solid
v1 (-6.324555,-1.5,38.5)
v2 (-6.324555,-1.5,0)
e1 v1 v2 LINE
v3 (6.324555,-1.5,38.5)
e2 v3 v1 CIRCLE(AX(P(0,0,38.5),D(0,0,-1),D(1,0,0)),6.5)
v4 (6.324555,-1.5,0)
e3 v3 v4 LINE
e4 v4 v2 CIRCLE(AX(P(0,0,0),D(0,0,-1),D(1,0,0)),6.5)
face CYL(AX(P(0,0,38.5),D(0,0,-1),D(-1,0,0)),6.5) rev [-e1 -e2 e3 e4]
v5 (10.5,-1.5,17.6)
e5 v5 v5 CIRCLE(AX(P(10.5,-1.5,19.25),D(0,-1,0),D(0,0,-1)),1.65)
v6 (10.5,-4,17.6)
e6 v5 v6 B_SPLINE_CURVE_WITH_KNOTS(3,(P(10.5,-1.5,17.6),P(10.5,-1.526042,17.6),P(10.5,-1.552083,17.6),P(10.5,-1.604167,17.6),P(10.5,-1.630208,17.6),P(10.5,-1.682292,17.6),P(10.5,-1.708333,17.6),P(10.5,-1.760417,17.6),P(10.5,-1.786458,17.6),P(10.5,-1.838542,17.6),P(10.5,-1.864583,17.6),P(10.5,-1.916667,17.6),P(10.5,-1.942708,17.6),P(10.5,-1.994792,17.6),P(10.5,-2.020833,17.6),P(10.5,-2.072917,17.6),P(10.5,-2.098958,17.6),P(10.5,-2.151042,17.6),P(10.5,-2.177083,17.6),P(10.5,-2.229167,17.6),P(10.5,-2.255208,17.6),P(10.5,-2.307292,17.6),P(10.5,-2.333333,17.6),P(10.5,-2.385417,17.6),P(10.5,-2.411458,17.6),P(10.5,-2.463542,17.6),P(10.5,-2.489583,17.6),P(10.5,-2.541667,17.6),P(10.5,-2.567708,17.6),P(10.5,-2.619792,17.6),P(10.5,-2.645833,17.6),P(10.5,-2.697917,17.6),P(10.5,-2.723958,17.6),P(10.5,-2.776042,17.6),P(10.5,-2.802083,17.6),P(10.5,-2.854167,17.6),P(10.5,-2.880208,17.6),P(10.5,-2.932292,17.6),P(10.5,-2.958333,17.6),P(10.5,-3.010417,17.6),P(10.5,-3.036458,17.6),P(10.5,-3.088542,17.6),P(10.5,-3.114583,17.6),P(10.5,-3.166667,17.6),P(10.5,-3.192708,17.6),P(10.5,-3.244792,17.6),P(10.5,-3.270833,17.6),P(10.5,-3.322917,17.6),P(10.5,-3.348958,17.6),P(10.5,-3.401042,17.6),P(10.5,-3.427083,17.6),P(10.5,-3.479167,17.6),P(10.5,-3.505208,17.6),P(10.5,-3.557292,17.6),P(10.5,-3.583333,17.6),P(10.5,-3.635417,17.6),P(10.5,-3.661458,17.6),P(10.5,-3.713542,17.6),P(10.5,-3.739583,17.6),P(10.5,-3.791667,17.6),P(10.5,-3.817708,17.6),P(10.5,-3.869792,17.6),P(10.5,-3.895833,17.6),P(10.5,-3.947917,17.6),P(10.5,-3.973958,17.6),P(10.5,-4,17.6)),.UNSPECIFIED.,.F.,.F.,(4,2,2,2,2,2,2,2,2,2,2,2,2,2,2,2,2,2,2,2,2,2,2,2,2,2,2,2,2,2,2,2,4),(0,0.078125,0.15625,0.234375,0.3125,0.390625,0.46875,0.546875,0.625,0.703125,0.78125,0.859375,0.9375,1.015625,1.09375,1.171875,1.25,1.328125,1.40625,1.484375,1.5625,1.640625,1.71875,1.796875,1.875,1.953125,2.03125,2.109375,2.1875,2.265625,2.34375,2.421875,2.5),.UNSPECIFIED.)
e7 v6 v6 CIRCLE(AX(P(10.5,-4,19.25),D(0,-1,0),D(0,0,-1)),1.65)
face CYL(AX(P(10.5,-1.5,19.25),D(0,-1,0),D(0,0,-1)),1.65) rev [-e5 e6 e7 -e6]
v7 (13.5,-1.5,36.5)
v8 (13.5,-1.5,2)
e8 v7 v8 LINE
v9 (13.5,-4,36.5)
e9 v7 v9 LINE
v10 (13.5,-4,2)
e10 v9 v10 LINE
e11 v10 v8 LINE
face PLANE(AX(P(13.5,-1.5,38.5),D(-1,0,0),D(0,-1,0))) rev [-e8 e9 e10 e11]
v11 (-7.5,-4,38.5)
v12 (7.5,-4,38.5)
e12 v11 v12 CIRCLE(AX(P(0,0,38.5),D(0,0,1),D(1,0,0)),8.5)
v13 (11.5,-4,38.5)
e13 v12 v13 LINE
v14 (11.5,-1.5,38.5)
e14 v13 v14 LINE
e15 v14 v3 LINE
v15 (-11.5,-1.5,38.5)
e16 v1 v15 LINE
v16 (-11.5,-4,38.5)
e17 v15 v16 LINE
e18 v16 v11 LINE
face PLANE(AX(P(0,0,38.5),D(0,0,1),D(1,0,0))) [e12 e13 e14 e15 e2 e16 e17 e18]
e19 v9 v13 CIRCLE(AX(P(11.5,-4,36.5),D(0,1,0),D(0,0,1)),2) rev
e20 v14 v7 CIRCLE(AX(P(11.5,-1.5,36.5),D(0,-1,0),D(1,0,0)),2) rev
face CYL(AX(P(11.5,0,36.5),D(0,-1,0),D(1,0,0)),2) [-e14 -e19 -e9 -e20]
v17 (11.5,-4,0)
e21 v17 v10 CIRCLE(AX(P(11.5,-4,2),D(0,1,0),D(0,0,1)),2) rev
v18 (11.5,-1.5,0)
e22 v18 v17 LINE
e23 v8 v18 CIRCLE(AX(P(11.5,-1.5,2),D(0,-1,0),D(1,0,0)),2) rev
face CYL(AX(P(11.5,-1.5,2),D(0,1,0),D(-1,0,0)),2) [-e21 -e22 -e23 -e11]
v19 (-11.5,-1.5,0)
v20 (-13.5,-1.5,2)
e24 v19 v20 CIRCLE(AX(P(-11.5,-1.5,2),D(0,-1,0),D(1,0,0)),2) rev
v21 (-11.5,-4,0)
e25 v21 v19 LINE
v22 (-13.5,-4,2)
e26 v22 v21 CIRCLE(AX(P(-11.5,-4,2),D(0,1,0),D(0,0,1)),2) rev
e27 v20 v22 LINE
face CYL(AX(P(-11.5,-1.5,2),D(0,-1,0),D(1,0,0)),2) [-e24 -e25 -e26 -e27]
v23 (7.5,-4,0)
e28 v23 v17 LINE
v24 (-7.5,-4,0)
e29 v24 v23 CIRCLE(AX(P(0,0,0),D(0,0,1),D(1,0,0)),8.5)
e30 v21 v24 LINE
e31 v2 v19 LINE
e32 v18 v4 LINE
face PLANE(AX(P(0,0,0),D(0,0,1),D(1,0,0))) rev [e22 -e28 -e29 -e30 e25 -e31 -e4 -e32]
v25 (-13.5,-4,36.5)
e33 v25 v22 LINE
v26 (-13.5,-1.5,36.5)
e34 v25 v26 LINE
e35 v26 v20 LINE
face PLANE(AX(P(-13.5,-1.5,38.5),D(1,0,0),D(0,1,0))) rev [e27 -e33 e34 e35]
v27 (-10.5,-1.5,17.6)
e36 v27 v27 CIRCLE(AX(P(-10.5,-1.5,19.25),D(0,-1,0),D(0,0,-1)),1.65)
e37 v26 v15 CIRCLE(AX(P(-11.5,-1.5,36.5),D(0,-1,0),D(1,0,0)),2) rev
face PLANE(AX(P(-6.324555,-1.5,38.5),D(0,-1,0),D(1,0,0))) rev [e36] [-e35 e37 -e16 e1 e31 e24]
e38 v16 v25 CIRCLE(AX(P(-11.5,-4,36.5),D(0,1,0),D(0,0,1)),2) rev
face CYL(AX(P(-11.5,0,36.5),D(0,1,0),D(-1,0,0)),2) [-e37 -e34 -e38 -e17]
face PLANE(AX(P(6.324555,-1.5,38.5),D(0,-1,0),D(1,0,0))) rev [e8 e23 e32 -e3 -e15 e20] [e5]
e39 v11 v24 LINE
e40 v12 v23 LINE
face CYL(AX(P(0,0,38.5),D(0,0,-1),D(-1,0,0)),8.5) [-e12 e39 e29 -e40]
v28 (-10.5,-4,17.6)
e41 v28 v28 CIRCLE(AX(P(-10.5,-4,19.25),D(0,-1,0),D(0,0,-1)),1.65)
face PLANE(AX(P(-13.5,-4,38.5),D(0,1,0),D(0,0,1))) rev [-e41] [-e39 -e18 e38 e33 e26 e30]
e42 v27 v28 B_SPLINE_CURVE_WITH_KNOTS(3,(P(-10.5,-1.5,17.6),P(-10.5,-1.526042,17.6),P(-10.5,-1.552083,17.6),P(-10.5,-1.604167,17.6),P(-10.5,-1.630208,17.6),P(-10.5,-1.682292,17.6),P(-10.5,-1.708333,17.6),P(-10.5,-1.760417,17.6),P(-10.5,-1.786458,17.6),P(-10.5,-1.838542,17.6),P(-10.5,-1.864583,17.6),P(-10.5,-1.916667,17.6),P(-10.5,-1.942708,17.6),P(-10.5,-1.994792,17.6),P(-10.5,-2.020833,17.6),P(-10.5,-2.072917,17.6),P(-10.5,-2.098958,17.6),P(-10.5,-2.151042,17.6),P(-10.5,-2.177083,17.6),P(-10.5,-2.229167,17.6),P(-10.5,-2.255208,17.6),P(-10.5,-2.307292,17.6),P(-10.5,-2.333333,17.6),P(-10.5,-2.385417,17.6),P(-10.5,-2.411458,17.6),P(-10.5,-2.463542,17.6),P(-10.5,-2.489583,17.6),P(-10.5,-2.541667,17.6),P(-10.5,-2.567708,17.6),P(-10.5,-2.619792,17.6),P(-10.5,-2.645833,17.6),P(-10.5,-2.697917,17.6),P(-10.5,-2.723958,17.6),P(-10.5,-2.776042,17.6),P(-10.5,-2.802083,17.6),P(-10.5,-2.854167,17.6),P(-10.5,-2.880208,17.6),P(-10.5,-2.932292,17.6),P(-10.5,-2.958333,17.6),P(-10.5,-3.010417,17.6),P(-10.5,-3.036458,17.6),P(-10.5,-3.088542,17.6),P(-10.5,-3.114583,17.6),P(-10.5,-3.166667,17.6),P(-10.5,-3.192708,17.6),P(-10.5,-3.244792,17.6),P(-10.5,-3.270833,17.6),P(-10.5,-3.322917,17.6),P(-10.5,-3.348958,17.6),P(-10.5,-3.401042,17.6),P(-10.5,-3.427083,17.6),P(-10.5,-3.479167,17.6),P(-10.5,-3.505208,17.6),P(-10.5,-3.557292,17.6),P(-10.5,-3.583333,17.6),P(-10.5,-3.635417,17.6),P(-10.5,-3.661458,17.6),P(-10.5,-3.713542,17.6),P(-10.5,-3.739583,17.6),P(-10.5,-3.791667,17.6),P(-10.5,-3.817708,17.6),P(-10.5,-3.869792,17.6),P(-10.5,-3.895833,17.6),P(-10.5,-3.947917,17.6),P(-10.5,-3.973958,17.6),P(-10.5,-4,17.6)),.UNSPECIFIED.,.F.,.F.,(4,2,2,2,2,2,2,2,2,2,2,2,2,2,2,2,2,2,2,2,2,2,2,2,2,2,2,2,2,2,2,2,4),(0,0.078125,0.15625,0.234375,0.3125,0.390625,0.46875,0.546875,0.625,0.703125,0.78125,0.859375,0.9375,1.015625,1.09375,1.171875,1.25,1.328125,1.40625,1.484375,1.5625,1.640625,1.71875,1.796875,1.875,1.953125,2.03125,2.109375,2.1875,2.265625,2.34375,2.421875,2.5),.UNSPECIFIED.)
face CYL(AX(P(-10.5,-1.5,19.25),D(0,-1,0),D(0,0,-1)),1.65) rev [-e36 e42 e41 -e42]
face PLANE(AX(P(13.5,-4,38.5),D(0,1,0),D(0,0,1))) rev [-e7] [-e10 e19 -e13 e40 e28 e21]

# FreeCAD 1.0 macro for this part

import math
import FreeCAD as App
import Part
import Sketcher

V = App.Vector
Q = App.Units.Quantity


def edges_at(feature, points):
    """Names of the edges that pass closest to the given points."""
    edges = feature.Shape.Edges
    near = lambda p: min(range(len(edges)), key=lambda i: edges[i].distToShape(Part.Vertex(*p))[0])
    return sorted({f"Edge{near(p) + 1}" for p in points})

doc = App.newDocument("Part")
body = doc.addObject("PartDesign::Body", "Body")

sketch1 = body.newObject("Sketcher::SketchObject", "Sketch")
sketch1.AttachmentSupport = (doc.getObject("XY_Plane"), [""])
sketch1.MapMode = "FlatFace"
sketch1.addGeometry(Part.LineSegment(V(-6.3, -1.5, 0), V(-13.5, -1.5, 0)), False)
sketch1.addGeometry(Part.LineSegment(V(-13.5, -1.5, 0), V(-13.5, -4, 0)), False)
sketch1.addGeometry(Part.LineSegment(V(-13.5, -4, 0), V(-7.5, -4, 0)), False)
sketch1.addGeometry(Part.ArcOfCircle(Part.Circle(V(0, 0, 0), V(0, 0, 1), 8.5), math.radians(-152), math.radians(-28)), False)
sketch1.addGeometry(Part.LineSegment(V(7.5, -4, 0), V(13.5, -4, 0)), False)
sketch1.addGeometry(Part.LineSegment(V(13.5, -4, 0), V(13.5, -1.5, 0)), False)
sketch1.addGeometry(Part.LineSegment(V(13.5, -1.5, 0), V(6.3, -1.5, 0)), False)
sketch1.addGeometry(Part.ArcOfCircle(Part.Circle(V(0, 0, 0), V(0, 0, 1), 6.5), math.radians(-167), math.radians(-13)), False)
sketch1.addConstraint(Sketcher.Constraint("Coincident", 0, 2, 1, 1))
sketch1.addConstraint(Sketcher.Constraint("Coincident", 1, 2, 2, 1))
sketch1.addConstraint(Sketcher.Constraint("Coincident", 2, 2, 3, 1))
sketch1.addConstraint(Sketcher.Constraint("Coincident", 3, 2, 4, 1))
sketch1.addConstraint(Sketcher.Constraint("Coincident", 4, 2, 5, 1))
sketch1.addConstraint(Sketcher.Constraint("Coincident", 5, 2, 6, 1))
sketch1.addConstraint(Sketcher.Constraint("Coincident", 6, 2, 7, 2))
sketch1.addConstraint(Sketcher.Constraint("Coincident", 7, 1, 0, 1))
sketch1.addConstraint(Sketcher.Constraint("Horizontal", 0))
sketch1.addConstraint(Sketcher.Constraint("Vertical", 1))
sketch1.addConstraint(Sketcher.Constraint("Horizontal", 2))
sketch1.addConstraint(Sketcher.Constraint("Horizontal", 4))
sketch1.addConstraint(Sketcher.Constraint("Vertical", 5))
sketch1.addConstraint(Sketcher.Constraint("Horizontal", 6))
sketch1.addConstraint(Sketcher.Constraint("Coincident", 3, 3, -1, 1))
sketch1.addConstraint(Sketcher.Constraint("Coincident", 7, 3, -1, 1))
sketch1.addConstraint(Sketcher.Constraint("Symmetric", 1, 2, 4, 2, -2))
sketch1.addConstraint(Sketcher.Constraint("Horizontal", 0, 2, 5, 2))
sketch1.addConstraint(Sketcher.Constraint("Radius", 3, Q("8.5 mm")))
sketch1.addConstraint(Sketcher.Constraint("Radius", 7, Q("6.5 mm")))
sketch1.addConstraint(Sketcher.Constraint("DistanceX", 2, 1, 2, 2, Q("6 mm")))
sketch1.addConstraint(Sketcher.Constraint("DistanceY", 1, 2, 1, 1, Q("2.5 mm")))
sketch1.addConstraint(Sketcher.Constraint("DistanceY", 1, 2, -1, 1, Q("4 mm")))
pad1 = body.newObject("PartDesign::Pad", "Pad")
pad1.Profile = sketch1
pad1.Length = 38.5

sketch2 = body.newObject("Sketcher::SketchObject", "Sketch001")
sketch2.AttachmentSupport = (doc.getObject("XZ_Plane"), [""])
sketch2.MapMode = "FlatFace"
sketch2.AttachmentOffset = App.Placement(V(0, 0, 4), App.Rotation())
sketch2.addGeometry(Part.Circle(V(-10.5, 19.2, 0), V(0, 0, 1), 1.6), False)
sketch2.addGeometry(Part.Circle(V(10.5, 19.2, 0), V(0, 0, 1), 1.6), False)
sketch2.addConstraint(Sketcher.Constraint("Equal", 0, 1))
sketch2.addConstraint(Sketcher.Constraint("Symmetric", 0, 3, 1, 3, -2))
sketch2.addConstraint(Sketcher.Constraint("Diameter", 0, Q("3.3 mm")))
sketch2.addConstraint(Sketcher.Constraint("DistanceX", 0, 3, 1, 3, Q("21 mm")))
sketch2.addConstraint(Sketcher.Constraint("DistanceY", -1, 1, 0, 3, Q("19.25 mm")))
pocket1 = body.newObject("PartDesign::Pocket", "Pocket")
pocket1.Profile = sketch2
pocket1.Type = "ThroughAll"
doc.recompute()

fillet = body.newObject("PartDesign::Fillet", "Fillet")
fillet.Base = (pocket1, edges_at(pocket1, [
    (-13.5, -2.75, 38.5),
    (13.5, -2.75, 38.5),
    (13.5, -2.75, 0),
    (-13.5, -2.75, 0),
]))
fillet.Radius = 2

doc.recompute()
